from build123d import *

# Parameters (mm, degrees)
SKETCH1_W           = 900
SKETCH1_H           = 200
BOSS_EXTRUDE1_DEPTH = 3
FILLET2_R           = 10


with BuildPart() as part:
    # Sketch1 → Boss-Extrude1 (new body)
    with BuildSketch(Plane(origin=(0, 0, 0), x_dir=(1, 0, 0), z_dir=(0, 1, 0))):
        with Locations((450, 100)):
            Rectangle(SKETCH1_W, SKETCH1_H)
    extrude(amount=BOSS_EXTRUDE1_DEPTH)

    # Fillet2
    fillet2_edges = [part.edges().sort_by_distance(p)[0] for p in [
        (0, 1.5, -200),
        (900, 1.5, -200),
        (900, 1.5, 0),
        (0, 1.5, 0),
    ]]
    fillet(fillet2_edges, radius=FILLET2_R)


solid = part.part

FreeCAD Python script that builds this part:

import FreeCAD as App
import Part
import Sketcher

V = App.Vector


def edges_at(feature, points):
    """Names of the edges that pass closest to the given points."""
    edges = feature.Shape.Edges
    near = lambda p: min(range(len(edges)), key=lambda i: edges[i].distToShape(Part.Vertex(*p))[0])
    return sorted({f"Edge{near(p) + 1}" for p in points})

doc = App.newDocument("Part")
body = doc.addObject("PartDesign::Body", "Body")

sketch1 = body.newObject("Sketcher::SketchObject", "Sketch")
sketch1.AttachmentSupport = (doc.getObject("XZ_Plane"), [""])
sketch1.MapMode = "FlatFace"
sketch1.addGeometry(Part.LineSegment(V(0, -200, 0), V(0, 0, 0)), False)
sketch1.addGeometry(Part.LineSegment(V(0, 0, 0), V(900, 0, 0)), False)
sketch1.addGeometry(Part.LineSegment(V(900, 0, 0), V(900, -200, 0)), False)
sketch1.addGeometry(Part.LineSegment(V(900, -200, 0), V(0, -200, 0)), False)
sketch1.addConstraint(Sketcher.Constraint("Coincident", 0, 2, 1, 1))
sketch1.addConstraint(Sketcher.Constraint("Coincident", 1, 2, 2, 1))
sketch1.addConstraint(Sketcher.Constraint("Coincident", 2, 2, 3, 1))
sketch1.addConstraint(Sketcher.Constraint("Coincident", 3, 2, 0, 1))
sketch1.addConstraint(Sketcher.Constraint("Vertical", 0))
sketch1.addConstraint(Sketcher.Constraint("Horizontal", 1))
sketch1.addConstraint(Sketcher.Constraint("Vertical", 2))
sketch1.addConstraint(Sketcher.Constraint("Horizontal", 3))
sketch1.addConstraint(Sketcher.Constraint("Coincident", 0, 2, -1, 1))
sketch1.addConstraint(Sketcher.Constraint("DistanceX", 1, 1, 1, 2, 900.0))
sketch1.addConstraint(Sketcher.Constraint("DistanceY", 0, 1, 0, 2, 200.0))
pad1 = body.newObject("PartDesign::Pad", "Pad")
pad1.Profile = sketch1
pad1.Length = 3
pad1.Reversed = True
doc.recompute()

fillet = body.newObject("PartDesign::Fillet", "Fillet")
fillet.Base = (pad1, edges_at(pad1, [
    (0, 1.5, -200),
    (900, 1.5, -200),
    (900, 1.5, 0),
    (0, 1.5, 0),
]))
fillet.Radius = 10

doc.recompute()
